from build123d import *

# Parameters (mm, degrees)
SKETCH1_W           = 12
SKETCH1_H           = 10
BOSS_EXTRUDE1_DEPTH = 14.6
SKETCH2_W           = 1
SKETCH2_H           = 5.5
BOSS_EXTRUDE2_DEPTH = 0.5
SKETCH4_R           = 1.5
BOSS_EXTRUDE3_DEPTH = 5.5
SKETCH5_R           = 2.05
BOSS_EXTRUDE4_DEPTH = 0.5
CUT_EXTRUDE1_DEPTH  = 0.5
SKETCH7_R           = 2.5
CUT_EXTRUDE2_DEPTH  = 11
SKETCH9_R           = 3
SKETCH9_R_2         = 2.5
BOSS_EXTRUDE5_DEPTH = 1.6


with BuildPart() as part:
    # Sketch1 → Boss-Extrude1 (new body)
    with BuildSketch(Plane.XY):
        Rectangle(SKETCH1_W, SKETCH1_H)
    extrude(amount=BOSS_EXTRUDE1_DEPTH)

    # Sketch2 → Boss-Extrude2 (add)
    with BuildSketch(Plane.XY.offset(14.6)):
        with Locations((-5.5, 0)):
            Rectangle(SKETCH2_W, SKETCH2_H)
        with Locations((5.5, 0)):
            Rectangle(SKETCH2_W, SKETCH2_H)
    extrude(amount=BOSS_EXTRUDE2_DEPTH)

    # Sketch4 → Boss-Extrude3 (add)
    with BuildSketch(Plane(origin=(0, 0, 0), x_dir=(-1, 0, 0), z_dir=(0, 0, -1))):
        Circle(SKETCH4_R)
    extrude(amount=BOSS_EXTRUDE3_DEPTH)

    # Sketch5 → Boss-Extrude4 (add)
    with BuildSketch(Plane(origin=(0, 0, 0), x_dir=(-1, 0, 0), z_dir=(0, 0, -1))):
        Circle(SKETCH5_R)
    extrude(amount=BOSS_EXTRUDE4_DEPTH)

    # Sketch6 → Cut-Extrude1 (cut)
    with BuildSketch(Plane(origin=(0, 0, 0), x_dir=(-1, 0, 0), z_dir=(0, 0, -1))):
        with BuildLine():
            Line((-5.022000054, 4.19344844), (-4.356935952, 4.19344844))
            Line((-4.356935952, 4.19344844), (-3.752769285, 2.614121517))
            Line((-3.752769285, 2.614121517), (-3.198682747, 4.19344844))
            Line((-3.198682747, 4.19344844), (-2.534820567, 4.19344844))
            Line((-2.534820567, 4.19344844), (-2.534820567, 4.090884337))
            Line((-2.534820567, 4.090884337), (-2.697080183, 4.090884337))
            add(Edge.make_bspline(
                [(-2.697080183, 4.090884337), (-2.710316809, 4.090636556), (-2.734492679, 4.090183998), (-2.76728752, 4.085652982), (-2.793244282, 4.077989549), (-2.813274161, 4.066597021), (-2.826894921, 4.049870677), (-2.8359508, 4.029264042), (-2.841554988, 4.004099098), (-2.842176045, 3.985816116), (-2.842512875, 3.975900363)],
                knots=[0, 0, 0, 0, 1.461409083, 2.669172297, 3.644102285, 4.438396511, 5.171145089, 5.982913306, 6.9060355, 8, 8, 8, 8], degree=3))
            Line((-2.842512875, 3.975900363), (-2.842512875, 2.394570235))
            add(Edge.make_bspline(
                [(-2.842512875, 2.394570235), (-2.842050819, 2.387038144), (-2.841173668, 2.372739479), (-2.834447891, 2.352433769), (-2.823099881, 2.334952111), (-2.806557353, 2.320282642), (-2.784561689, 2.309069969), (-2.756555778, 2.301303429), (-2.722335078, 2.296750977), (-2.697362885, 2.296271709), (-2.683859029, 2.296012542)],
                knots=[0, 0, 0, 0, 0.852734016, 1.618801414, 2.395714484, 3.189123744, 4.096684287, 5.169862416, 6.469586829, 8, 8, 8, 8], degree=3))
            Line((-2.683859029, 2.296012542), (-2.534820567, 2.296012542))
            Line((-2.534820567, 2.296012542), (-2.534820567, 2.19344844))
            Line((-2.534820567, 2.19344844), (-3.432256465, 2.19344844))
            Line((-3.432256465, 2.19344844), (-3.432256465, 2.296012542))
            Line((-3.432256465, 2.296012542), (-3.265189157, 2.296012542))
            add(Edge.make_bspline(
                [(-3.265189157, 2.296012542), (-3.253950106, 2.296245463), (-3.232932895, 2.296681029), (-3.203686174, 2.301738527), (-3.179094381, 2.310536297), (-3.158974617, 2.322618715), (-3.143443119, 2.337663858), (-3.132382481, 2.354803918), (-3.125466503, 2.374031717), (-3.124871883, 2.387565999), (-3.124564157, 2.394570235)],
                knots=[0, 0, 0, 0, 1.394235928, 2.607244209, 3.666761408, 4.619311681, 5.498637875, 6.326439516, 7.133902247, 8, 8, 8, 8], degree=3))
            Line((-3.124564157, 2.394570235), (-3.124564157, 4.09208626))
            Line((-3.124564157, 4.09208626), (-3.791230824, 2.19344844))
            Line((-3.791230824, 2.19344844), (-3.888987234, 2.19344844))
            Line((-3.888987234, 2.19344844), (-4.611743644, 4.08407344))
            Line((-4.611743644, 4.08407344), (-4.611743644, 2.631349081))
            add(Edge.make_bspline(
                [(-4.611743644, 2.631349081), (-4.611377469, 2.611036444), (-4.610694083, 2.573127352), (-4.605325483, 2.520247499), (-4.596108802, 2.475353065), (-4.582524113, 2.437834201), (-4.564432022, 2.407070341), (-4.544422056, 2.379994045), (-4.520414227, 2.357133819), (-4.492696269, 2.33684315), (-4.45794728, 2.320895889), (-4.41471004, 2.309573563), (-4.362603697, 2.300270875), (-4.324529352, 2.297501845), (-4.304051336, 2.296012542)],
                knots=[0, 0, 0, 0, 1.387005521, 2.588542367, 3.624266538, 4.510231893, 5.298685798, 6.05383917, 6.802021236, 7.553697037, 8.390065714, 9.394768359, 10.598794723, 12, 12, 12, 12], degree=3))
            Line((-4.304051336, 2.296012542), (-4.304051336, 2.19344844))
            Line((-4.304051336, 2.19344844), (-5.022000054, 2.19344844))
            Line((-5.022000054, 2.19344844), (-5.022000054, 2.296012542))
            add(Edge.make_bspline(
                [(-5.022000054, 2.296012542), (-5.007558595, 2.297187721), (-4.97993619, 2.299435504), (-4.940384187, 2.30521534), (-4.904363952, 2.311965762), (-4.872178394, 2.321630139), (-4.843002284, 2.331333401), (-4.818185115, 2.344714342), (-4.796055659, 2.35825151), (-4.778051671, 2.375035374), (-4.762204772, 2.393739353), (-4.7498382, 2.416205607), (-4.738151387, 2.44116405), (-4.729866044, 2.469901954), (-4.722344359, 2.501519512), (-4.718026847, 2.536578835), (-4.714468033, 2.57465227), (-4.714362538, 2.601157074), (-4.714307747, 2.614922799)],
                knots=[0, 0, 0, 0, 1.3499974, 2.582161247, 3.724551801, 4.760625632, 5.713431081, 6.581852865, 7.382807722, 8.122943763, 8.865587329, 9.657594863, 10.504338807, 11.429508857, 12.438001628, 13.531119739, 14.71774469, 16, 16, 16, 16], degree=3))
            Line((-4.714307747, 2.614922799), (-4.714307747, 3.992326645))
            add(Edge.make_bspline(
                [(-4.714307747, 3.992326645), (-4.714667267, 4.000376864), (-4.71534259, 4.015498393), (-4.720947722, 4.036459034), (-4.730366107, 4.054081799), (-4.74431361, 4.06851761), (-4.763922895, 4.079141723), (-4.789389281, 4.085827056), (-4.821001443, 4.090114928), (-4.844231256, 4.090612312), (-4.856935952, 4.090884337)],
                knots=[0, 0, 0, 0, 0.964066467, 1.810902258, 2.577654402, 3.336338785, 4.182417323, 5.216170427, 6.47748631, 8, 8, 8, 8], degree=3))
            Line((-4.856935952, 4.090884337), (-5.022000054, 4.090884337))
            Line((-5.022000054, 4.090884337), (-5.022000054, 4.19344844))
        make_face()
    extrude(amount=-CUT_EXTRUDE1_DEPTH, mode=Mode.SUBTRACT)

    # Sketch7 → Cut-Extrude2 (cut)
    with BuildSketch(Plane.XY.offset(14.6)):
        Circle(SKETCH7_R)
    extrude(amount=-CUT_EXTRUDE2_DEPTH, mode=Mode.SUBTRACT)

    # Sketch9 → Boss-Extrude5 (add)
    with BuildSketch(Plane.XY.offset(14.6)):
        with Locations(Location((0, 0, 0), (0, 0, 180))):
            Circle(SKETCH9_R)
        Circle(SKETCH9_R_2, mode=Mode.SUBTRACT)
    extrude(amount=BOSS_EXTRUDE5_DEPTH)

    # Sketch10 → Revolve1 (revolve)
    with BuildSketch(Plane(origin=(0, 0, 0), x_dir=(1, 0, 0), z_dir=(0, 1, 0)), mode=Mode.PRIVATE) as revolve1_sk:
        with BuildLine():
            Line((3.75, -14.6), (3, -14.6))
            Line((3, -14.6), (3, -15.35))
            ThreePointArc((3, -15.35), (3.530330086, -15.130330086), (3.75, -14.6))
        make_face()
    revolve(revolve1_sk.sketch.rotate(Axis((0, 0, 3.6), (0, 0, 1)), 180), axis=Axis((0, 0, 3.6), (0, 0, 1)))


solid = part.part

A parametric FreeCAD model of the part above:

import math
import FreeCAD as App
import Part
import Sketcher

V = App.Vector


def add_polygon(sketch, points):
    """Adds a closed chain of lines whose ends are joined by coincident constraints."""
    first, n = sketch.GeometryCount, len(points)
    for a, b in zip(points, points[1:] + points[:1]):
        sketch.addGeometry(Part.LineSegment(App.Vector(*a, 0), App.Vector(*b, 0)), False)
    for i in range(n):
        sketch.addConstraint(Sketcher.Constraint("Coincident", first + i, 2, first + (i + 1) % n, 1))

doc = App.newDocument("Part")
body = doc.addObject("PartDesign::Body", "Body")

# Sketch on XY plane
sketch1 = body.newObject("Sketcher::SketchObject", "Sketch")
sketch1.AttachmentSupport = (doc.getObject("XY_Plane"), [""])
sketch1.MapMode = "FlatFace"
add_polygon(sketch1, [(-6, 5), (-6, -5), (6, -5), (6, 5)])  # lines 0-3
sketch1.addConstraint(Sketcher.Constraint("Vertical", 0))
sketch1.addConstraint(Sketcher.Constraint("Horizontal", 1))
sketch1.addConstraint(Sketcher.Constraint("Vertical", 2))
sketch1.addConstraint(Sketcher.Constraint("Horizontal", 3))
sketch1.addConstraint(Sketcher.Constraint("Symmetric", 0, 2, 2, 2, -1, 1))
sketch1.addConstraint(Sketcher.Constraint("DistanceX", 1, 1, 1, 2, 12.0))
sketch1.addConstraint(Sketcher.Constraint("DistanceY", 0, 2, 0, 1, 10.0))
pad1 = body.newObject("PartDesign::Pad", "Pad")
pad1.Profile = sketch1
pad1.Length = 14.6

# Sketch on XY plane
sketch2 = body.newObject("Sketcher::SketchObject", "Sketch001")
sketch2.AttachmentSupport = (doc.getObject("XY_Plane"), [""])
sketch2.MapMode = "FlatFace"
sketch2.AttachmentOffset = App.Placement(V(0, 0, 14.6), App.Rotation())
add_polygon(sketch2, [(-6, 2.75), (-6, -2.75), (-5, -2.75), (-5, 2.75)])  # lines 0-3
add_polygon(sketch2, [(5, 2.75), (5, -2.75), (6, -2.75), (6, 2.75)])  # lines 4-7
sketch2.addConstraint(Sketcher.Constraint("Vertical", 0))
sketch2.addConstraint(Sketcher.Constraint("Horizontal", 1))
sketch2.addConstraint(Sketcher.Constraint("Vertical", 2))
sketch2.addConstraint(Sketcher.Constraint("Horizontal", 3))
sketch2.addConstraint(Sketcher.Constraint("Vertical", 4))
sketch2.addConstraint(Sketcher.Constraint("Horizontal", 5))
sketch2.addConstraint(Sketcher.Constraint("Vertical", 6))
sketch2.addConstraint(Sketcher.Constraint("Horizontal", 7))
sketch2.addConstraint(Sketcher.Constraint("Symmetric", 2, 2, 4, 2, -1, 1))
sketch2.addConstraint(Sketcher.Constraint("Symmetric", 0, 2, 6, 2, -1, 1))
sketch2.addConstraint(Sketcher.Constraint("Horizontal", 1, 2, 4, 2))
sketch2.addConstraint(Sketcher.Constraint("DistanceX", 1, 1, 1, 2, 1.0))
sketch2.addConstraint(Sketcher.Constraint("DistanceY", 0, 2, 0, 1, 5.5))
sketch2.addConstraint(Sketcher.Constraint("DistanceX", 0, 2, -1, 1, 6.0))
pad2 = body.newObject("PartDesign::Pad", "Pad001")
pad2.Profile = sketch2
pad2.Length = 0.5

# Sketch on XY plane
sketch3 = body.newObject("Sketcher::SketchObject", "Sketch002")
sketch3.AttachmentSupport = (doc.getObject("XY_Plane"), [""])
sketch3.MapMode = "FlatFace"
sketch3.addGeometry(Part.Circle(V(0, 0, 0), V(0, 0, 1), 1.5), False)
sketch3.addConstraint(Sketcher.Constraint("Coincident", 0, 3, -1, 1))
sketch3.addConstraint(Sketcher.Constraint("Diameter", 0, 3.0))
pad3 = body.newObject("PartDesign::Pad", "Pad002")
pad3.Profile = sketch3
pad3.Length = 5.5
pad3.Reversed = True

# Sketch on XY plane
sketch4 = body.newObject("Sketcher::SketchObject", "Sketch003")
sketch4.AttachmentSupport = (doc.getObject("XY_Plane"), [""])
sketch4.MapMode = "FlatFace"
sketch4.addGeometry(Part.Circle(V(0, 0, 0), V(0, 0, 1), 2.05), False)
sketch4.addConstraint(Sketcher.Constraint("Coincident", 0, 3, -1, 1))
sketch4.addConstraint(Sketcher.Constraint("Diameter", 0, 4.1))
pad4 = body.newObject("PartDesign::Pad", "Pad003")
pad4.Profile = sketch4
pad4.Length = 0.5
pad4.Reversed = True

# Sketch on XY plane
sketch5 = body.newObject("Sketcher::SketchObject", "Sketch004")
sketch5.AttachmentSupport = (doc.getObject("XY_Plane"), [""])
sketch5.MapMode = "FlatFace"
sketch5.addGeometry(Part.LineSegment(V(4.356936, 4.193448, 0), V(5.022, 4.193448, 0)), False)
sketch5.addGeometry(Part.LineSegment(V(5.022, 4.193448, 0), V(5.022, 4.090884, 0)), False)
sketch5.addGeometry(Part.LineSegment(V(5.022, 4.090884, 0), V(4.856936, 4.090884, 0)), False)
sketch5.addGeometry(Part.BSplineCurve([V(4.714308, 3.992327, 0), V(4.714667, 4.000377, 0), V(4.715343, 4.015498, 0), V(4.720948, 4.036459, 0), V(4.730366, 4.054082, 0), V(4.744314, 4.068518, 0), V(4.763923, 4.079142, 0), V(4.789389, 4.085827, 0), V(4.821001, 4.090115, 0), V(4.844231, 4.090612, 0), V(4.856936, 4.090884, 0)], [4, 1, 1, 1, 1, 1, 1, 1, 4], [0, 0.964066467, 1.810902258, 2.577654402, 3.336338785, 4.182417323, 5.216170427, 6.47748631, 8], False, 3, [1, 1, 1, 1, 1, 1, 1, 1, 1, 1, 1], False), False)
sketch5.addGeometry(Part.LineSegment(V(4.714308, 3.992327, 0), V(4.714308, 2.614923, 0)), False)
sketch5.addGeometry(Part.BSplineCurve([V(5.022, 2.296013, 0), V(5.007559, 2.297188, 0), V(4.979936, 2.299436, 0), V(4.940384, 2.305215, 0), V(4.904364, 2.311966, 0), V(4.872178, 2.32163, 0), V(4.843002, 2.331333, 0), V(4.818185, 2.344714, 0), V(4.796056, 2.358252, 0), V(4.778052, 2.375035, 0), V(4.762205, 2.393739, 0), V(4.749838, 2.416206, 0), V(4.738151, 2.441164, 0), V(4.729866, 2.469902, 0), V(4.722344, 2.50152, 0), V(4.718027, 2.536579, 0), V(4.714468, 2.574652, 0), V(4.714363, 2.601157, 0), V(4.714308, 2.614923, 0)], [4, 1, 1, 1, 1, 1, 1, 1, 1, 1, 1, 1, 1, 1, 1, 1, 4], [0, 1.3499974, 2.582161247, 3.724551801, 4.760625632, 5.713431081, 6.581852865, 7.382807722, 8.122943763, 8.865587329, 9.657594863, 10.504338807, 11.429508857, 12.438001628, 13.531119739, 14.71774469, 16], False, 3, [1, 1, 1, 1, 1, 1, 1, 1, 1, 1, 1, 1, 1, 1, 1, 1, 1, 1, 1], False), False)
sketch5.addGeometry(Part.LineSegment(V(5.022, 2.296013, 0), V(5.022, 2.193448, 0)), False)
sketch5.addGeometry(Part.LineSegment(V(5.022, 2.193448, 0), V(4.304051, 2.193448, 0)), False)
sketch5.addGeometry(Part.LineSegment(V(4.304051, 2.193448, 0), V(4.304051, 2.296013, 0)), False)
sketch5.addGeometry(Part.BSplineCurve([V(4.611744, 2.631349, 0), V(4.611377, 2.611036, 0), V(4.610694, 2.573127, 0), V(4.605325, 2.520247, 0), V(4.596109, 2.475353, 0), V(4.582524, 2.437834, 0), V(4.564432, 2.40707, 0), V(4.544422, 2.379994, 0), V(4.520414, 2.357134, 0), V(4.492696, 2.336843, 0), V(4.457947, 2.320896, 0), V(4.41471, 2.309574, 0), V(4.362604, 2.300271, 0), V(4.324529, 2.297502, 0), V(4.304051, 2.296013, 0)], [4, 1, 1, 1, 1, 1, 1, 1, 1, 1, 1, 1, 4], [0, 1.387005521, 2.588542367, 3.624266538, 4.510231893, 5.298685798, 6.05383917, 6.802021236, 7.553697037, 8.390065714, 9.394768359, 10.598794723, 12], False, 3, [1, 1, 1, 1, 1, 1, 1, 1, 1, 1, 1, 1, 1, 1, 1], False), False)
sketch5.addGeometry(Part.LineSegment(V(4.611744, 2.631349, 0), V(4.611744, 4.084073, 0)), False)
sketch5.addGeometry(Part.LineSegment(V(4.611744, 4.084073, 0), V(3.888987, 2.193448, 0)), False)
sketch5.addGeometry(Part.LineSegment(V(3.888987, 2.193448, 0), V(3.791231, 2.193448, 0)), False)
sketch5.addGeometry(Part.LineSegment(V(3.791231, 2.193448, 0), V(3.124564, 4.092086, 0)), False)
sketch5.addGeometry(Part.LineSegment(V(3.124564, 4.092086, 0), V(3.124564, 2.39457, 0)), False)
sketch5.addGeometry(Part.BSplineCurve([V(3.265189, 2.296013, 0), V(3.25395, 2.296245, 0), V(3.232933, 2.296681, 0), V(3.203686, 2.301739, 0), V(3.179094, 2.310536, 0), V(3.158975, 2.322619, 0), V(3.143443, 2.337664, 0), V(3.132382, 2.354804, 0), V(3.125467, 2.374032, 0), V(3.124872, 2.387566, 0), V(3.124564, 2.39457, 0)], [4, 1, 1, 1, 1, 1, 1, 1, 4], [0, 1.394235928, 2.607244209, 3.666761408, 4.619311681, 5.498637875, 6.326439516, 7.133902247, 8], False, 3, [1, 1, 1, 1, 1, 1, 1, 1, 1, 1, 1], False), False)
sketch5.addGeometry(Part.LineSegment(V(3.265189, 2.296013, 0), V(3.432256, 2.296013, 0)), False)
sketch5.addGeometry(Part.LineSegment(V(3.432256, 2.296013, 0), V(3.432256, 2.193448, 0)), False)
sketch5.addGeometry(Part.LineSegment(V(3.432256, 2.193448, 0), V(2.534821, 2.193448, 0)), False)
sketch5.addGeometry(Part.LineSegment(V(2.534821, 2.193448, 0), V(2.534821, 2.296013, 0)), False)
sketch5.addGeometry(Part.LineSegment(V(2.534821, 2.296013, 0), V(2.683859, 2.296013, 0)), False)
sketch5.addGeometry(Part.BSplineCurve([V(2.842513, 2.39457, 0), V(2.842051, 2.387038, 0), V(2.841174, 2.372739, 0), V(2.834448, 2.352434, 0), V(2.8231, 2.334952, 0), V(2.806557, 2.320283, 0), V(2.784562, 2.30907, 0), V(2.756556, 2.301303, 0), V(2.722335, 2.296751, 0), V(2.697363, 2.296272, 0), V(2.683859, 2.296013, 0)], [4, 1, 1, 1, 1, 1, 1, 1, 4], [0, 0.852734016, 1.618801414, 2.395714484, 3.189123744, 4.096684287, 5.169862416, 6.469586829, 8], False, 3, [1, 1, 1, 1, 1, 1, 1, 1, 1, 1, 1], False), False)
sketch5.addGeometry(Part.LineSegment(V(2.842513, 2.39457, 0), V(2.842513, 3.9759, 0)), False)
sketch5.addGeometry(Part.BSplineCurve([V(2.69708, 4.090884, 0), V(2.710317, 4.090637, 0), V(2.734493, 4.090184, 0), V(2.767288, 4.085653, 0), V(2.793244, 4.07799, 0), V(2.813274, 4.066597, 0), V(2.826895, 4.049871, 0), V(2.835951, 4.029264, 0), V(2.841555, 4.004099, 0), V(2.842176, 3.985816, 0), V(2.842513, 3.9759, 0)], [4, 1, 1, 1, 1, 1, 1, 1, 4], [0, 1.461409083, 2.669172297, 3.644102285, 4.438396511, 5.171145089, 5.982913306, 6.9060355, 8], False, 3, [1, 1, 1, 1, 1, 1, 1, 1, 1, 1, 1], False), False)
sketch5.addGeometry(Part.LineSegment(V(2.69708, 4.090884, 0), V(2.534821, 4.090884, 0)), False)
sketch5.addGeometry(Part.LineSegment(V(2.534821, 4.090884, 0), V(2.534821, 4.193448, 0)), False)
sketch5.addGeometry(Part.LineSegment(V(2.534821, 4.193448, 0), V(3.198683, 4.193448, 0)), False)
sketch5.addGeometry(Part.LineSegment(V(3.198683, 4.193448, 0), V(3.752769, 2.614122, 0)), False)
sketch5.addGeometry(Part.LineSegment(V(3.752769, 2.614122, 0), V(4.356936, 4.193448, 0)), False)
sketch5.addConstraint(Sketcher.Constraint("Block", 3))
sketch5.addConstraint(Sketcher.Constraint("Block", 5))
sketch5.addConstraint(Sketcher.Constraint("Block", 9))
sketch5.addConstraint(Sketcher.Constraint("Block", 15))
sketch5.addConstraint(Sketcher.Constraint("Block", 21))
sketch5.addConstraint(Sketcher.Constraint("Block", 23))
sketch5.addConstraint(Sketcher.Constraint("Coincident", 0, 2, 1, 1))
sketch5.addConstraint(Sketcher.Constraint("Coincident", 1, 2, 2, 1))
sketch5.addConstraint(Sketcher.Constraint("Coincident", 2, 2, 3, 2))
sketch5.addConstraint(Sketcher.Constraint("Coincident", 3, 1, 4, 1))
sketch5.addConstraint(Sketcher.Constraint("Coincident", 4, 2, 5, 2))
sketch5.addConstraint(Sketcher.Constraint("Coincident", 5, 1, 6, 1))
sketch5.addConstraint(Sketcher.Constraint("Coincident", 6, 2, 7, 1))
sketch5.addConstraint(Sketcher.Constraint("Coincident", 7, 2, 8, 1))
sketch5.addConstraint(Sketcher.Constraint("Coincident", 8, 2, 9, 2))
sketch5.addConstraint(Sketcher.Constraint("Coincident", 9, 1, 10, 1))
sketch5.addConstraint(Sketcher.Constraint("Coincident", 10, 2, 11, 1))
sketch5.addConstraint(Sketcher.Constraint("Coincident", 11, 2, 12, 1))
sketch5.addConstraint(Sketcher.Constraint("Coincident", 12, 2, 13, 1))
sketch5.addConstraint(Sketcher.Constraint("Coincident", 13, 2, 14, 1))
sketch5.addConstraint(Sketcher.Constraint("Coincident", 14, 2, 15, 2))
sketch5.addConstraint(Sketcher.Constraint("Coincident", 15, 1, 16, 1))
sketch5.addConstraint(Sketcher.Constraint("Coincident", 16, 2, 17, 1))
sketch5.addConstraint(Sketcher.Constraint("Coincident", 17, 2, 18, 1))
sketch5.addConstraint(Sketcher.Constraint("Coincident", 18, 2, 19, 1))
sketch5.addConstraint(Sketcher.Constraint("Coincident", 19, 2, 20, 1))
sketch5.addConstraint(Sketcher.Constraint("Coincident", 20, 2, 21, 2))
sketch5.addConstraint(Sketcher.Constraint("Coincident", 21, 1, 22, 1))
sketch5.addConstraint(Sketcher.Constraint("Coincident", 22, 2, 23, 2))
sketch5.addConstraint(Sketcher.Constraint("Coincident", 23, 1, 24, 1))
sketch5.addConstraint(Sketcher.Constraint("Coincident", 24, 2, 25, 1))
sketch5.addConstraint(Sketcher.Constraint("Coincident", 25, 2, 26, 1))
sketch5.addConstraint(Sketcher.Constraint("Coincident", 26, 2, 27, 1))
sketch5.addConstraint(Sketcher.Constraint("Coincident", 27, 2, 28, 1))
sketch5.addConstraint(Sketcher.Constraint("Coincident", 28, 2, 0, 1))
sketch5.addConstraint(Sketcher.Constraint("Horizontal", 0))
sketch5.addConstraint(Sketcher.Constraint("Vertical", 1))
sketch5.addConstraint(Sketcher.Constraint("Horizontal", 2))
sketch5.addConstraint(Sketcher.Constraint("Vertical", 6))
sketch5.addConstraint(Sketcher.Constraint("Horizontal", 7))
sketch5.addConstraint(Sketcher.Constraint("Vertical", 8))
sketch5.addConstraint(Sketcher.Constraint("Vertical", 10))
sketch5.addConstraint(Sketcher.Constraint("Horizontal", 12))
sketch5.addConstraint(Sketcher.Constraint("Vertical", 14))
sketch5.addConstraint(Sketcher.Constraint("Horizontal", 16))
sketch5.addConstraint(Sketcher.Constraint("Vertical", 17))
sketch5.addConstraint(Sketcher.Constraint("Horizontal", 18))
sketch5.addConstraint(Sketcher.Constraint("Vertical", 19))
sketch5.addConstraint(Sketcher.Constraint("Horizontal", 20))
sketch5.addConstraint(Sketcher.Constraint("Horizontal", 24))
sketch5.addConstraint(Sketcher.Constraint("Vertical", 25))
sketch5.addConstraint(Sketcher.Constraint("Horizontal", 26))
sketch5.addConstraint(Sketcher.Constraint("DistanceY", 6, 2, 0, 2, 2.0))
sketch5.addConstraint(Sketcher.Constraint("DistanceX", 28, 2, 2, 2, 0.5))
sketch5.addConstraint(Sketcher.Constraint("DistanceX", -1, 1, 0, 2, 5.022))
sketch5.addConstraint(Sketcher.Constraint("DistanceX", 20, 1, 20, 2, 0.149038))
sketch5.addConstraint(Sketcher.Constraint("DistanceX", 24, 2, 24, 1, 0.16226))
sketch5.addConstraint(Sketcher.Constraint("DistanceY", 2, 2, 13, 2, 0.001202))
sketch5.addConstraint(Sketcher.Constraint("Distance", 13, 2.01228))
sketch5.addConstraint(Sketcher.Constraint("DistanceX", 12, 2, 12, 1, 0.097756))
sketch5.addConstraint(Sketcher.Constraint("DistanceX", 16, 1, 16, 2, 0.167067))
sketch5.addConstraint(Sketcher.Constraint("DistanceX", 26, 1, 26, 2, 0.663862))
sketch5.addConstraint(Sketcher.Constraint("DistanceY", 1, 2, 1, 1, 0.102564))
sketch5.addConstraint(Sketcher.Constraint("DistanceY", 10, 1, 10, 2, 1.452724))
sketch5.addConstraint(Sketcher.Constraint("DistanceY", 17, 2, 17, 1, 0.102564))
sketch5.addConstraint(Sketcher.Constraint("DistanceY", 25, 1, 25, 2, 0.102564))
sketch5.addConstraint(Sketcher.Constraint("DistanceY", -1, 1, 11, 2, 2.193448))
sketch5.addConstraint(Sketcher.Constraint("DistanceX", -1, 1, 27, 2, 3.752769))
sketch5.addConstraint(Sketcher.Constraint("DistanceY", -1, 1, 27, 2, 2.614122))
pocket1 = body.newObject("PartDesign::Pocket", "Pocket")
pocket1.Profile = sketch5
pocket1.Length = 0.5
pocket1.Reversed = True

# Sketch on XY plane
sketch6 = body.newObject("Sketcher::SketchObject", "Sketch005")
sketch6.AttachmentSupport = (doc.getObject("XY_Plane"), [""])
sketch6.MapMode = "FlatFace"
sketch6.AttachmentOffset = App.Placement(V(0, 0, 14.6), App.Rotation())
sketch6.addGeometry(Part.Circle(V(0, 0, 0), V(0, 0, 1), 2.5), False)
sketch6.addConstraint(Sketcher.Constraint("Coincident", 0, 3, -1, 1))
sketch6.addConstraint(Sketcher.Constraint("Diameter", 0, 5.0))
pocket2 = body.newObject("PartDesign::Pocket", "Pocket001")
pocket2.Profile = sketch6
pocket2.Length = 11

# Sketch on XY plane
sketch7 = body.newObject("Sketcher::SketchObject", "Sketch006")
sketch7.AttachmentSupport = (doc.getObject("XY_Plane"), [""])
sketch7.MapMode = "FlatFace"
sketch7.AttachmentOffset = App.Placement(V(0, 0, 14.6), App.Rotation())
sketch7.addGeometry(Part.Circle(V(0, 0, 0), V(0, 0, 1), 3), False)
sketch7.addGeometry(Part.Circle(V(0, 0, 0), V(0, 0, 1), 2.5), False)
sketch7.addConstraint(Sketcher.Constraint("Coincident", 0, 3, -1, 1))
sketch7.addConstraint(Sketcher.Constraint("Coincident", 1, 3, -1, 1))
sketch7.addConstraint(Sketcher.Constraint("Diameter", 0, 6.0))
sketch7.addConstraint(Sketcher.Constraint("Diameter", 1, 5.0))
pad5 = body.newObject("PartDesign::Pad", "Pad004")
pad5.Profile = sketch7
pad5.Length = 1.6

# Sketch on XZ plane
sketch8 = body.newObject("Sketcher::SketchObject", "Sketch007")
sketch8.AttachmentSupport = (doc.getObject("XZ_Plane"), [""])
sketch8.MapMode = "FlatFace"
sketch8.addGeometry(Part.LineSegment(V(3.75, 14.6, 0), V(3, 14.6, 0)), False)
sketch8.addGeometry(Part.LineSegment(V(3, 14.6, 0), V(3, 15.35, 0)), False)
sketch8.addGeometry(Part.ArcOfCircle(Part.Circle(V(3, 14.6, 0), V(0, 0, 1), 0.75), math.radians(0), math.radians(90)), False)
sketch8.addConstraint(Sketcher.Constraint("Coincident", 0, 2, 1, 1))
sketch8.addConstraint(Sketcher.Constraint("Coincident", 1, 2, 2, 2))
sketch8.addConstraint(Sketcher.Constraint("Coincident", 2, 1, 0, 1))
sketch8.addConstraint(Sketcher.Constraint("Horizontal", 0))
sketch8.addConstraint(Sketcher.Constraint("Vertical", 1))
sketch8.addConstraint(Sketcher.Constraint("Coincident", 0, 2, 2, 3))
sketch8.addConstraint(Sketcher.Constraint("Radius", 2, 0.75))
sketch8.addConstraint(Sketcher.Constraint("DistanceX", -1, 1, 2, 3, 3.0))
sketch8.addConstraint(Sketcher.Constraint("DistanceY", -1, 1, 2, 3, 14.6))
revolution = body.newObject("PartDesign::Revolution", "Revolution")
revolution.Profile = sketch8
revolution.ReferenceAxis = (sketch8, ["V_Axis"])
revolution.Angle = 360

doc.recompute()
